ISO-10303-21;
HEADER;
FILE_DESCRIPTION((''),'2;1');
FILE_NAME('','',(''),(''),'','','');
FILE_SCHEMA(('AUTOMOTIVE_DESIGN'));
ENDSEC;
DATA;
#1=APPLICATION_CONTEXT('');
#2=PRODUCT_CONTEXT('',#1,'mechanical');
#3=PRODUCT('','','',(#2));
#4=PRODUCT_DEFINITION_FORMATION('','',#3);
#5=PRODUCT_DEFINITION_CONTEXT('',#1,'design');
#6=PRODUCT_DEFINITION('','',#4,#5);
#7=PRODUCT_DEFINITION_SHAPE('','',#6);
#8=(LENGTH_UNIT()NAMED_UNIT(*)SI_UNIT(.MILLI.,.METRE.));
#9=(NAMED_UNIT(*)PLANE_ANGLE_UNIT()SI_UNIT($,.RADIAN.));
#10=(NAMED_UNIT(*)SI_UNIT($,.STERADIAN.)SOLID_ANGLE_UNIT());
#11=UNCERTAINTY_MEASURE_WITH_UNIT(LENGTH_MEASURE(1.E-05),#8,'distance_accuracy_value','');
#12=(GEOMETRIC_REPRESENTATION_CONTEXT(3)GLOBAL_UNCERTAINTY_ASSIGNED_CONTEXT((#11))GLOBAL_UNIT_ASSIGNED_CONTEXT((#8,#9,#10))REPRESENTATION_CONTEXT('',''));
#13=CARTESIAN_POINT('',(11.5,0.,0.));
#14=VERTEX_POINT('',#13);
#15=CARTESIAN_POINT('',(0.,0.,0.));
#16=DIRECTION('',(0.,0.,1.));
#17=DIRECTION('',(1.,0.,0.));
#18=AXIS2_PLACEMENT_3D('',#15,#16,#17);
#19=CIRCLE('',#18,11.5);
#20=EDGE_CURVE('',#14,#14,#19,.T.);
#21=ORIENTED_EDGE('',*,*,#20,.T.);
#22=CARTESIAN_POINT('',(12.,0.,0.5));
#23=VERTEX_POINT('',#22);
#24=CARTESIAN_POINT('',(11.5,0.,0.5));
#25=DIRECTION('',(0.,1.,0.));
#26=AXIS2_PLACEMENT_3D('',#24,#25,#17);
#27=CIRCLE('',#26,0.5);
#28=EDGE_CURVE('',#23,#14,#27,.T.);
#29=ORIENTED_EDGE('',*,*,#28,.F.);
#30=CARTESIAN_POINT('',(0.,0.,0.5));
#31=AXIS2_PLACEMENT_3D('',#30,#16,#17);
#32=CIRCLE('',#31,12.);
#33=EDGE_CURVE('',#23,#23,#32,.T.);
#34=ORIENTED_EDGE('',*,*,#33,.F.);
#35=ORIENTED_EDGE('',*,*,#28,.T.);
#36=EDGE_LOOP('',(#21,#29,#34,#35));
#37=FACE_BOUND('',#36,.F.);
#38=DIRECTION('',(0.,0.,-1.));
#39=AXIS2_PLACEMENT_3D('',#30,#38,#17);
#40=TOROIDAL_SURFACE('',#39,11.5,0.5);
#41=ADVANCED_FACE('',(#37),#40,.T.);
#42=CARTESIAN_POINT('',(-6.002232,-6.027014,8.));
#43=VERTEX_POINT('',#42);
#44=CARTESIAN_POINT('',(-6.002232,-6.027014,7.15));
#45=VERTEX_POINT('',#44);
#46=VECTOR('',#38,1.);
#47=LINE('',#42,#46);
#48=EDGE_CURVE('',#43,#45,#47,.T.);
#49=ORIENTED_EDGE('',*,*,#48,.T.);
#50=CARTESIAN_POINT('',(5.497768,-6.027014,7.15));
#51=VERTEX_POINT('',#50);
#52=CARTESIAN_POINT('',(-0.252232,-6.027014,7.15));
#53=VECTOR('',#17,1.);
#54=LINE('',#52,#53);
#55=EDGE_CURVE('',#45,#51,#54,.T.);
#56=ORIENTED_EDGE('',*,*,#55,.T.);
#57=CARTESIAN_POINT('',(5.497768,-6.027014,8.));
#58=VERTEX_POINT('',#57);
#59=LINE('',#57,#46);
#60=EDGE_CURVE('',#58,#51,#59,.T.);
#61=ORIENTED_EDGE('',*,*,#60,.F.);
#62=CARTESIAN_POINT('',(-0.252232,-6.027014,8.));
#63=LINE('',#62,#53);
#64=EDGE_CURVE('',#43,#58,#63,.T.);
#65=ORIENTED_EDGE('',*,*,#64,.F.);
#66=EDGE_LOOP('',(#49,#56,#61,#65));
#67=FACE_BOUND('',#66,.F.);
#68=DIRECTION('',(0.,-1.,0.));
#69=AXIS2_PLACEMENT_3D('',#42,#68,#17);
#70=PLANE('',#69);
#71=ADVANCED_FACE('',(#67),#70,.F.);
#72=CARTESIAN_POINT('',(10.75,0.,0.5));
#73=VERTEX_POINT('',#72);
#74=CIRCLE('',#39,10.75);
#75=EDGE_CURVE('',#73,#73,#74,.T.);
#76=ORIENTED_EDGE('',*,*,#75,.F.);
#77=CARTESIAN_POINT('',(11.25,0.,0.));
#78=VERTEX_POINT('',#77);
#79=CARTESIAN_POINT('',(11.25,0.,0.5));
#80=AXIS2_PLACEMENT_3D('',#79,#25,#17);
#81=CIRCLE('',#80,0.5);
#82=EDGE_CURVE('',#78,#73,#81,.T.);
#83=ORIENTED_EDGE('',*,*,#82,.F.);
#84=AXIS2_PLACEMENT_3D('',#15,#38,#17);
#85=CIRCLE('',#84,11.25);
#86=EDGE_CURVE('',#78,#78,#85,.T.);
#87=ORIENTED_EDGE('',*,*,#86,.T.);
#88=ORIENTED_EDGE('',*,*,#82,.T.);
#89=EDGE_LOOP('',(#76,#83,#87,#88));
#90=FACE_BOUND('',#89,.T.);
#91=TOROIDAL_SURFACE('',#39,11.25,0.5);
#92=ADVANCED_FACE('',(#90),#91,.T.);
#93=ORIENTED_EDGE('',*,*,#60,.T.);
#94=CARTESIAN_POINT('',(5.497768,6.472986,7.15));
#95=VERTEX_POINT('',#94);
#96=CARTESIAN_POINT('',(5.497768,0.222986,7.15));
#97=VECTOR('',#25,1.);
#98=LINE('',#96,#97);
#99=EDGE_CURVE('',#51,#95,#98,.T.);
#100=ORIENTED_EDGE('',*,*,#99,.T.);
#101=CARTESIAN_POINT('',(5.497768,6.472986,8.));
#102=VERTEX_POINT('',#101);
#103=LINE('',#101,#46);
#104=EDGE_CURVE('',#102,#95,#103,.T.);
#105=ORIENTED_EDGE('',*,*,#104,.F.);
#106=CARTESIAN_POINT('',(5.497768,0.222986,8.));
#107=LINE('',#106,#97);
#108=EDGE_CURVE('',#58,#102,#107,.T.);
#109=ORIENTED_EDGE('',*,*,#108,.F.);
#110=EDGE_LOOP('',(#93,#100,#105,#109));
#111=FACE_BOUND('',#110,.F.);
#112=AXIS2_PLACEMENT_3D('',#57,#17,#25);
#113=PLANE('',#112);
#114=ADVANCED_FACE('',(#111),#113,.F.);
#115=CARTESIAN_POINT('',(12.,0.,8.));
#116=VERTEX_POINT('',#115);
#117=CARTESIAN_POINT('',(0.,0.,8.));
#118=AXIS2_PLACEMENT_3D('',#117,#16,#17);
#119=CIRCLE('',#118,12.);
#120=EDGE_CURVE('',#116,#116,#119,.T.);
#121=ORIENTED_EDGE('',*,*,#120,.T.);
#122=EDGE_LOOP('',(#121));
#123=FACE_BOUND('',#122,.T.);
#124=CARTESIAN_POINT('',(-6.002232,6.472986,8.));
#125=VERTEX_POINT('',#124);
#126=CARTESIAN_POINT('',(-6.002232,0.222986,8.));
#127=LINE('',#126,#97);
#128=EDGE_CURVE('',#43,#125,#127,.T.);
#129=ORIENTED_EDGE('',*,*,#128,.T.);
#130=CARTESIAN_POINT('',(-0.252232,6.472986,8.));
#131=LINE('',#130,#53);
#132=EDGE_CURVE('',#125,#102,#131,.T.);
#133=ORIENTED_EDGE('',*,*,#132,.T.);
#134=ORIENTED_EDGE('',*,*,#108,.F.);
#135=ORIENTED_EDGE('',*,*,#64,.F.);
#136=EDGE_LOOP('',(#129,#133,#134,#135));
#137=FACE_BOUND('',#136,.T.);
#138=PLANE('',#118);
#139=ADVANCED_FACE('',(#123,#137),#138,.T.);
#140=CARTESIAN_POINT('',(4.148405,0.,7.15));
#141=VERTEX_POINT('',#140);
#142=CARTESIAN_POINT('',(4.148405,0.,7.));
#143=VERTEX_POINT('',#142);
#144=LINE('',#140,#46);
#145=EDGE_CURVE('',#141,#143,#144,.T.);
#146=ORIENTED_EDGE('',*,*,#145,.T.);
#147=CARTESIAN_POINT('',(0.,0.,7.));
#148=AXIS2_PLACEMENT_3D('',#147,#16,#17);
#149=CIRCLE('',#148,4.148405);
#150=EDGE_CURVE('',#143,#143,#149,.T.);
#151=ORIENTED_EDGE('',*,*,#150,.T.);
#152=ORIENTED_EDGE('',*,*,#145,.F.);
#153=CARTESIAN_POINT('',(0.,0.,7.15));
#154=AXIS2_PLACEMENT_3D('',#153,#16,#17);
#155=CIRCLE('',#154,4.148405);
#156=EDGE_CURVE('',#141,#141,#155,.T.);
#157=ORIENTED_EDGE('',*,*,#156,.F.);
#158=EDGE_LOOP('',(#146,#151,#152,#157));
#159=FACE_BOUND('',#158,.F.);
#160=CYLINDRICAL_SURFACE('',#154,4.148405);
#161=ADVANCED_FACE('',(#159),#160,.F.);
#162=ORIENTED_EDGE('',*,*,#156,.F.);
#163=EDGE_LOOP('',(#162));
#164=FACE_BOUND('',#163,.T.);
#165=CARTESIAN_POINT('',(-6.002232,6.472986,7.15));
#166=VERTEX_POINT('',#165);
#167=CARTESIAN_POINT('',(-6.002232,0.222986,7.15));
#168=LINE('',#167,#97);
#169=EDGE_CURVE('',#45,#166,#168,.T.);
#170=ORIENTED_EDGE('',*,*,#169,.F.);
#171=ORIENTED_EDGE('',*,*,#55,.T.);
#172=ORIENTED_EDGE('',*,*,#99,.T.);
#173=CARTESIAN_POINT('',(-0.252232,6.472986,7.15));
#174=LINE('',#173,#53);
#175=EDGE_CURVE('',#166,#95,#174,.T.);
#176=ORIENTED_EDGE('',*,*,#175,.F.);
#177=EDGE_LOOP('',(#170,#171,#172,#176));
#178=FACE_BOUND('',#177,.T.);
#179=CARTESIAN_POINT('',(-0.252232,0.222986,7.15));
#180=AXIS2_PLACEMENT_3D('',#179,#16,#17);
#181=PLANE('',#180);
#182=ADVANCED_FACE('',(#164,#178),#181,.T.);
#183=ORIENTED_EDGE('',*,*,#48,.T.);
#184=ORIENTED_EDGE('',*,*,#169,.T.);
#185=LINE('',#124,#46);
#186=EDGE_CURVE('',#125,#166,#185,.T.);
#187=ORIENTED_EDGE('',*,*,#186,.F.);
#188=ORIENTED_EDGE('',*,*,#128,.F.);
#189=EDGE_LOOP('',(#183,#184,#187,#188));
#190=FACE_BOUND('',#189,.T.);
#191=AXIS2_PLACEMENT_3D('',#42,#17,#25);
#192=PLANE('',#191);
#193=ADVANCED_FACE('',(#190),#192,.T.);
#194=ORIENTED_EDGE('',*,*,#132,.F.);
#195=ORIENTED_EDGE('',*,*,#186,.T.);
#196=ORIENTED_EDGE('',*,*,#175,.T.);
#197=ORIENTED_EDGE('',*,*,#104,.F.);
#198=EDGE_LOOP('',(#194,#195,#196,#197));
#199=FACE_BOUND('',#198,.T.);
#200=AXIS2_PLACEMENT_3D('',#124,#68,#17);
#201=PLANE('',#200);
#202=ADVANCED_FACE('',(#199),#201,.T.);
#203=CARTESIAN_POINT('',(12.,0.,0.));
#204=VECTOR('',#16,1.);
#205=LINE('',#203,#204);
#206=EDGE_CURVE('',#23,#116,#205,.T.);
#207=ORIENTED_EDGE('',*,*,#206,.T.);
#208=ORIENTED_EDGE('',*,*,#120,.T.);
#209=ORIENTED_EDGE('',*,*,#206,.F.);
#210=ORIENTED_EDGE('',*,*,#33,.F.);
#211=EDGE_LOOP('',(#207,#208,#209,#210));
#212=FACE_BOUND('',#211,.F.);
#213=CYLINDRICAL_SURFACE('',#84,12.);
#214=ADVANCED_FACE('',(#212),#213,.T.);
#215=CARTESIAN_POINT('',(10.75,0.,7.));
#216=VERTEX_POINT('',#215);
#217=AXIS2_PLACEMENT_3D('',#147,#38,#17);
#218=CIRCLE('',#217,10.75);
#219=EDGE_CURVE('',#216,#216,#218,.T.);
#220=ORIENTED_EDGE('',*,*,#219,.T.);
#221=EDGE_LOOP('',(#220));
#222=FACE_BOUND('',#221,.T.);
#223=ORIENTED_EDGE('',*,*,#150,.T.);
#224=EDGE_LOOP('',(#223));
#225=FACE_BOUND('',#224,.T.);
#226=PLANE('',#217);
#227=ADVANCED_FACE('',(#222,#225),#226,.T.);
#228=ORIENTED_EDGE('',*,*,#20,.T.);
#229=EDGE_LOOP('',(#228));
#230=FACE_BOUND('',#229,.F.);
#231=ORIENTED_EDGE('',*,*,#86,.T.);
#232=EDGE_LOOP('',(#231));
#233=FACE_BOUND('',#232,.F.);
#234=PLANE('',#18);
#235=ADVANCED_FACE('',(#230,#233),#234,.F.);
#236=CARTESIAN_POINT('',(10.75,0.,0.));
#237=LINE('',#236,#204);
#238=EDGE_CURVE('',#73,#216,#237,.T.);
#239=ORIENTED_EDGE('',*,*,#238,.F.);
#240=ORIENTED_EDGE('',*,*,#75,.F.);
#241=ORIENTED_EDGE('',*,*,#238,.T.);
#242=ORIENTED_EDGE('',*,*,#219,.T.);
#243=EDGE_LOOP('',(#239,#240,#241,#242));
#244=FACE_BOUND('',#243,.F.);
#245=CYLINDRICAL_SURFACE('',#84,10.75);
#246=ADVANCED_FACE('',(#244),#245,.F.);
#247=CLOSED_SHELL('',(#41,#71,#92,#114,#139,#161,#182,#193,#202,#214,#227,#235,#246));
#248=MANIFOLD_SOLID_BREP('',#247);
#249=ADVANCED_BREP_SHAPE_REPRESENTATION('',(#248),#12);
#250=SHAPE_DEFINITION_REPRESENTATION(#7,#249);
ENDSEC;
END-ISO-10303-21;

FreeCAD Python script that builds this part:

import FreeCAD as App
import Part
import Sketcher

V = App.Vector
Q = App.Units.Quantity


def edges_at(feature, points):
    """Names of the edges that pass closest to the given points."""
    edges = feature.Shape.Edges
    near = lambda p: min(range(len(edges)), key=lambda i: edges[i].distToShape(Part.Vertex(*p))[0])
    return sorted({f"Edge{near(p) + 1}" for p in points})

doc = App.newDocument("Part")
params = doc.addObject("Spreadsheet::Sheet", "Params")
for row, (alias, value) in enumerate([
    ("sketch1_diameter", "24 mm"),
    ("pad1_length", "8 mm"),
    ("sketch2_diameter", "21.5 mm"),
    ("pocket1_length", "7 mm"),
    ("sketch3_width", "11.5 mm"),
    ("sketch3_height", "12.5 mm"),
    ("pocket2_length", "0.85 mm"),
    ("pocket3_length", "0.15 mm"),
    ("fillet_radius", "0.5 mm"),
], start=1):
    params.set(f"A{row}", alias)
    params.set(f"B{row}", "=" + value)
    params.setAlias(f"B{row}", alias)

body = doc.addObject("PartDesign::Body", "Body")

sketch1 = doc.addObject("Sketcher::SketchObject", "Sketch")
body.addObject(sketch1)
sketch1.AttachmentSupport = (doc.XY_Plane, [""])
sketch1.MapMode = "FlatFace"
sketch1.addGeometry(Part.Circle(V(0, 0, 0), V(0, 0, 1), 12), False)
sketch1.addConstraint([
    Sketcher.Constraint("Coincident", 0, 3, -1, 1),
    Sketcher.Constraint("Diameter", 0, Q("24 mm")),
])
sketch1.setExpression("Constraints[1]", "Params.sketch1_diameter")
pad1 = doc.addObject("PartDesign::Pad", "Pad")
body.addObject(pad1)
pad1.Profile = sketch1
pad1.setExpression("Length", "Params.pad1_length")

sketch2 = doc.addObject("Sketcher::SketchObject", "Sketch001")
body.addObject(sketch2)
sketch2.AttachmentSupport = (doc.XY_Plane, [""])
sketch2.MapMode = "FlatFace"
sketch2.addGeometry(Part.Circle(V(0, 0, 0), V(0, 0, 1), 11), False)
sketch2.addConstraint([
    Sketcher.Constraint("Coincident", 0, 3, -1, 1),
    Sketcher.Constraint("Diameter", 0, Q("21.5 mm")),
])
sketch2.setExpression("Constraints[1]", "Params.sketch2_diameter")
pocket1 = doc.addObject("PartDesign::Pocket", "Pocket")
body.addObject(pocket1)
pocket1.Profile = sketch2
pocket1.setExpression("Length", "Params.pocket1_length")
pocket1.Reversed = True

sketch3 = doc.addObject("Sketcher::SketchObject", "Sketch002")
body.addObject(sketch3)
sketch3.AttachmentSupport = (doc.XY_Plane, [""])
sketch3.MapMode = "FlatFace"
sketch3.AttachmentOffset = App.Placement(V(0, 0, 8), App.Rotation())
sketch3.addGeometry([
    Part.LineSegment(V(-6, 6, 0), V(-6, -6, 0)),
    Part.LineSegment(V(-6, -6, 0), V(5, -6, 0)),
    Part.LineSegment(V(5, -6, 0), V(5, 6, 0)),
    Part.LineSegment(V(5, 6, 0), V(-6, 6, 0)),
], False)
sketch3.addConstraint([
    Sketcher.Constraint("Coincident", 0, 2, 1, 1),
    Sketcher.Constraint("Coincident", 1, 2, 2, 1),
    Sketcher.Constraint("Coincident", 2, 2, 3, 1),
    Sketcher.Constraint("Coincident", 3, 2, 0, 1),
    Sketcher.Constraint("Vertical", 0),
    Sketcher.Constraint("Horizontal", 1),
    Sketcher.Constraint("Vertical", 2),
    Sketcher.Constraint("Horizontal", 3),
    Sketcher.Constraint("DistanceX", 1, 1, 1, 2, Q("11.5 mm")),
    Sketcher.Constraint("DistanceY", 0, 2, 0, 1, Q("12.5 mm")),
    Sketcher.Constraint("DistanceX", 0, 2, -1, 1, Q("6.002232 mm")),
    Sketcher.Constraint("DistanceY", 0, 2, -1, 1, Q("6.027014 mm")),
])
sketch3.setExpression("Constraints[8]", "Params.sketch3_width")
sketch3.setExpression("Constraints[9]", "Params.sketch3_height")
pocket2 = doc.addObject("PartDesign::Pocket", "Pocket001")
body.addObject(pocket2)
pocket2.Profile = sketch3
pocket2.setExpression("Length", "Params.pocket2_length")

sketch4 = doc.addObject("Sketcher::SketchObject", "Sketch003")
body.addObject(sketch4)
sketch4.AttachmentSupport = (doc.XY_Plane, [""])
sketch4.MapMode = "FlatFace"
sketch4.AttachmentOffset = App.Placement(V(0, 0, 7.15), App.Rotation())
sketch4.addGeometry(Part.Circle(V(0, 0, 0), V(0, 0, 1), 4.1), False)
sketch4.addConstraint([
    Sketcher.Constraint("Coincident", 0, 3, -1, 1),
    Sketcher.Constraint("Diameter", 0, Q("8.29681 mm")),
])
pocket3 = doc.addObject("PartDesign::Pocket", "Pocket002")
body.addObject(pocket3)
pocket3.Profile = sketch4
pocket3.setExpression("Length", "Params.pocket3_length")
doc.recompute()

fillet = doc.addObject("PartDesign::Fillet", "Fillet")
body.addObject(fillet)
fillet.Base = (pocket3, edges_at(pocket3, [(-12, 0, 0), (-10.75, 0, 0)]))
fillet.setExpression("Radius", "Params.fillet_radius")

doc.recompute()
